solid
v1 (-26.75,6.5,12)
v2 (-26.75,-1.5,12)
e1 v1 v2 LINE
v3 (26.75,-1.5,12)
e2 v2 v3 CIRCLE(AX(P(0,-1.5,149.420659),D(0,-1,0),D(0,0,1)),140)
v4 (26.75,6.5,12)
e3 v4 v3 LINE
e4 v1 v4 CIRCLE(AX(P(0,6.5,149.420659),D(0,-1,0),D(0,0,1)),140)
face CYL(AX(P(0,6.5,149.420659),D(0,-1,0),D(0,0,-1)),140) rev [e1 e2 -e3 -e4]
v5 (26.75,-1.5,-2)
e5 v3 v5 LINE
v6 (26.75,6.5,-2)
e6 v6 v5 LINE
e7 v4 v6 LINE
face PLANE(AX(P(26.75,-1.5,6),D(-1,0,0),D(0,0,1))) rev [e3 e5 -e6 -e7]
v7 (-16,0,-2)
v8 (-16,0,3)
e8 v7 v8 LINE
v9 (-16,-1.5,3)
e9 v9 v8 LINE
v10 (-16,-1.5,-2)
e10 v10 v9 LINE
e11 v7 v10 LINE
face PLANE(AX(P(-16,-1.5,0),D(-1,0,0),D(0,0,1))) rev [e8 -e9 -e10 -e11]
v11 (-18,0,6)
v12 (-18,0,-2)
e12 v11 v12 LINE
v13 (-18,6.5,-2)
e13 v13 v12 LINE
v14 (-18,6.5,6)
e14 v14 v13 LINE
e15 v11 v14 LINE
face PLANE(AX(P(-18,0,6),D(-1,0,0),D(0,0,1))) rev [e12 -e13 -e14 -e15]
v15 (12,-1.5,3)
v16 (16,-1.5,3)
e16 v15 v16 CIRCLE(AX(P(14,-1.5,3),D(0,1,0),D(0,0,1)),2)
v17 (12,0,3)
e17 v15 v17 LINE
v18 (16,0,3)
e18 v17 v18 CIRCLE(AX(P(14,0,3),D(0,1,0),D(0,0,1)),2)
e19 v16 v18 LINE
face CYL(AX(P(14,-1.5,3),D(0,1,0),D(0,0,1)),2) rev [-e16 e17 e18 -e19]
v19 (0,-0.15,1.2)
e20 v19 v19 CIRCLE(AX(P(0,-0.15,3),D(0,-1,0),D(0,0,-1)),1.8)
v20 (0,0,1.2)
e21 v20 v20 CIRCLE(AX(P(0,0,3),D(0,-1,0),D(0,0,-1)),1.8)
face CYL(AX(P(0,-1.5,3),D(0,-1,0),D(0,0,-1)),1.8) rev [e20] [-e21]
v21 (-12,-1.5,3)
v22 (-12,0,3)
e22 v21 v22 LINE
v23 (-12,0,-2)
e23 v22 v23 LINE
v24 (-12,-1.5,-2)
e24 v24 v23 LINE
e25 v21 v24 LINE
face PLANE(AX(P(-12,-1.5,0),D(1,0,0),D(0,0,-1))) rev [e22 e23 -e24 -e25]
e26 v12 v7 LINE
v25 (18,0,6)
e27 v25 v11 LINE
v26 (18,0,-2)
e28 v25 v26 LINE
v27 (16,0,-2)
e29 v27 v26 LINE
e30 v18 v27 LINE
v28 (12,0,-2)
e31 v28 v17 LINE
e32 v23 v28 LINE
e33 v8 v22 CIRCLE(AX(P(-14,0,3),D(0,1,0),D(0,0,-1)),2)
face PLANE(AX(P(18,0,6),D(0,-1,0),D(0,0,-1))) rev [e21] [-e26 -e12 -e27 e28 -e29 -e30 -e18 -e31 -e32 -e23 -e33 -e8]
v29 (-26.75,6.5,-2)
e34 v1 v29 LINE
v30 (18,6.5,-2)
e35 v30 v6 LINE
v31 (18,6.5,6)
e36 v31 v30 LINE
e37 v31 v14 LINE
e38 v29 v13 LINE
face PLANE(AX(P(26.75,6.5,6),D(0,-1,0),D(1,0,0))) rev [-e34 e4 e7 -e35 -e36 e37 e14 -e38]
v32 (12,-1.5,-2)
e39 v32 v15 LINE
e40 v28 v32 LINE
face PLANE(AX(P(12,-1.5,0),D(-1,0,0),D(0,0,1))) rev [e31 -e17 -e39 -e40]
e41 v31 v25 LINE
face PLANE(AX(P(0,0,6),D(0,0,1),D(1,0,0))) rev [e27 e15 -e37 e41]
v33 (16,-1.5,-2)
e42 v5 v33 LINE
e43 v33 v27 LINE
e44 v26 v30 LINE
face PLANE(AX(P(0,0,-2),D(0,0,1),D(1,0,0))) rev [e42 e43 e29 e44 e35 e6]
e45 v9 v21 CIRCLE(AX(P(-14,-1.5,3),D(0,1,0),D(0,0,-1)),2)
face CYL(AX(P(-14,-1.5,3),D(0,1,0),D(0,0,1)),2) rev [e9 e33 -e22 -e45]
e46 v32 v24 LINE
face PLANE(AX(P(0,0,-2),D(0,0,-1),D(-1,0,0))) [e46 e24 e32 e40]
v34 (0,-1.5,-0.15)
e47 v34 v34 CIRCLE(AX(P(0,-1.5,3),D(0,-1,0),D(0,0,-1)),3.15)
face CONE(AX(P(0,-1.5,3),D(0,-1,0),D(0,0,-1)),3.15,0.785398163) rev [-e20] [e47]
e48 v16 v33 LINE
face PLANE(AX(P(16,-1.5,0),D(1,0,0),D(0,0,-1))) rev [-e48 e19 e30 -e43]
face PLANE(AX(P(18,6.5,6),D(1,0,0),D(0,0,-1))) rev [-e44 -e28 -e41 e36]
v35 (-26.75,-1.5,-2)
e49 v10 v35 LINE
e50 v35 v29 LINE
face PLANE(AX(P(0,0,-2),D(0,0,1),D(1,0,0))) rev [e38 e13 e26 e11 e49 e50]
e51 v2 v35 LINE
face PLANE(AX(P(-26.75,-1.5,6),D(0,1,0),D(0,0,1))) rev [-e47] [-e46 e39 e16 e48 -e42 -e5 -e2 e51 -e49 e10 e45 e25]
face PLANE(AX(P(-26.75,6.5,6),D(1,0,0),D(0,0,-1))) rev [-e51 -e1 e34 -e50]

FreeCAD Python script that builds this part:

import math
import FreeCAD as App
import Part
import Sketcher

V = App.Vector
Q = App.Units.Quantity


def add_polygon(sketch, points):
    """Adds a closed chain of lines whose ends are joined by coincident constraints."""
    first, n = sketch.GeometryCount, len(points)
    for a, b in zip(points, points[1:] + points[:1]):
        sketch.addGeometry(Part.LineSegment(App.Vector(*a, 0), App.Vector(*b, 0)), False)
    for i in range(n):
        sketch.addConstraint(Sketcher.Constraint("Coincident", first + i, 2, first + (i + 1) % n, 1))

doc = App.newDocument("Part")
params = doc.addObject("Spreadsheet::Sheet", "Params")
for row, (alias, value) in enumerate([
    ("sketch1_width", "36 mm"),
    ("sketch1_height", "8 mm"),
    ("sketch1_width2", "53.5 mm"),
    ("sketch1_height2", "6.5 mm"),
    ("pad1_length", "6 mm"),
    ("sketch2_height", "8 mm"),
    ("sketch2_width", "53.5 mm"),
    ("pad2_length", "2 mm"),
    ("sketch3_diameter", "3.6 mm"),
    ("hole_diameter", "3.6 mm"),
    ("hole_csink_diameter", "6.3 mm"),
    ("sketch4_radius", "2 mm"),
    ("sketch4_height", "3 mm"),
    ("sketch5_radius", "140 mm"),
    ("sketch5_height", "4 mm"),
    ("sketch5_width", "53.5 mm"),
    ("pad3_length", "8 mm"),
    ("sketch6_width", "2 mm"),
    ("sketch6_width2", "24 mm"),
    ("sketch6_height", "8 mm"),
    ("sketch6_height2", "1.5 mm"),
    ("sketch6_width3", "8.75 mm"),
    ("pad4_length", "2 mm"),
    ("sketch7_diameter", "3.6 mm"),
    ("hole2_diameter", "3.6 mm"),
    ("hole2_csink_diameter", "6.3 mm"),
], start=1):
    params.set(f"A{row}", alias)
    params.set(f"B{row}", "=" + value)
    params.setAlias(f"B{row}", alias)

body = doc.addObject("PartDesign::Body", "Body")

# Sketch on XY plane
sketch1 = body.newObject("Sketcher::SketchObject", "Sketch")
sketch1.AttachmentSupport = (doc.getObject("XY_Plane"), [""])
sketch1.MapMode = "FlatFace"
add_polygon(sketch1, [(-18, 0), (-18, 6), (-27, 6), (-27, -2), (27, -2), (27, 6), (18, 6), (18, 0)])  # lines 0-7
sketch1.addConstraint([
    Sketcher.Constraint("Vertical", 0),
    Sketcher.Constraint("Horizontal", 1),
    Sketcher.Constraint("Vertical", 2),
    Sketcher.Constraint("Horizontal", 3),
    Sketcher.Constraint("Vertical", 4),
    Sketcher.Constraint("Horizontal", 5),
    Sketcher.Constraint("Vertical", 6),
    Sketcher.Constraint("Horizontal", 7),
    Sketcher.Constraint("Symmetric", 6, 2, 7, 2, -1, 1),
    Sketcher.Constraint("Symmetric", 1, 2, 4, 2, -2),
    Sketcher.Constraint("DistanceX", 7, 2, 7, 1, Q("36 mm")),
    Sketcher.Constraint("DistanceY", 2, 2, 2, 1, Q("8 mm")),
    Sketcher.Constraint("DistanceX", 3, 1, 3, 2, Q("53.5 mm")),
    Sketcher.Constraint("DistanceY", 0, 1, 0, 2, Q("6.5 mm")),
])
sketch1.setExpression("Constraints[18]", "Params.sketch1_width")
sketch1.setExpression("Constraints[19]", "Params.sketch1_height")
sketch1.setExpression("Constraints[20]", "Params.sketch1_width2")
sketch1.setExpression("Constraints[21]", "Params.sketch1_height2")
pad1 = body.newObject("PartDesign::Pad", "Pad")
pad1.Profile = sketch1
pad1.setExpression("Length", "Params.pad1_length")

# Sketch on XY plane
sketch2 = body.newObject("Sketcher::SketchObject", "Sketch001")
sketch2.AttachmentSupport = (doc.getObject("XY_Plane"), [""])
sketch2.MapMode = "FlatFace"
sketch2.AttachmentOffset = App.Placement(V(0, 0, 6), App.Rotation())
add_polygon(sketch2, [(-27, 6), (-27, -2), (27, -2), (27, 6)])  # lines 0-3
sketch2.addConstraint([
    Sketcher.Constraint("Vertical", 0),
    Sketcher.Constraint("Horizontal", 1),
    Sketcher.Constraint("Vertical", 2),
    Sketcher.Constraint("Horizontal", 3),
    Sketcher.Constraint("DistanceY", 0, 2, 0, 1, Q("8 mm")),
    Sketcher.Constraint("DistanceX", 1, 1, 1, 2, Q("53.5 mm")),
    Sketcher.Constraint("DistanceY", 0, 2, -1, 1, Q("1.5 mm")),
    Sketcher.Constraint("DistanceX", 0, 2, -1, 1, Q("26.75 mm")),
])
sketch2.setExpression("Constraints[8]", "Params.sketch2_height")
sketch2.setExpression("Constraints[9]", "Params.sketch2_width")
pad2 = body.newObject("PartDesign::Pad", "Pad001")
pad2.Profile = sketch2
pad2.setExpression("Length", "Params.pad2_length")

# Sketch on XZ plane
sketch3 = body.newObject("Sketcher::SketchObject", "Sketch002")
sketch3.AttachmentSupport = (doc.getObject("XZ_Plane"), [""])
sketch3.MapMode = "FlatFace"
sketch3.AttachmentOffset = App.Placement(V(0, 0, 1.5), App.Rotation())
sketch3.addGeometry(Part.Circle(V(0, 3, 0), V(0, 0, 1), 1.8), False)
sketch3.addConstraint([
    Sketcher.Constraint("PointOnObject", 0, 3, -2),
    Sketcher.Constraint("Diameter", 0, Q("3.6 mm")),
    Sketcher.Constraint("DistanceY", -1, 1, 0, 3, Q("3 mm")),
])
sketch3.setExpression("Constraints[1]", "Params.sketch3_diameter")
doc.recompute()
hole = body.newObject("PartDesign::Hole", "Hole")
hole.Profile = sketch3
hole.ThreadType = "None"
hole.setExpression("Diameter", "Params.hole_diameter")
hole.DepthType = "ThroughAll"
hole.HoleCutType = "Countersink"
hole.setExpression("HoleCutDiameter", "Params.hole_csink_diameter")
hole.HoleCutCountersinkAngle = 90

# Sketch on XZ plane
sketch4 = body.newObject("Sketcher::SketchObject", "Sketch003")
sketch4.AttachmentSupport = (doc.getObject("XZ_Plane"), [""])
sketch4.MapMode = "FlatFace"
sketch4.addGeometry([
    Part.LineSegment(V(16, 3, 0), V(16, 0, 0)),  # 0
    Part.ArcOfCircle(Part.Circle(V(14, 0, 0), V(0, 0, 1), 2), math.radians(180), math.radians(360)),  # 1
    Part.LineSegment(V(12, 0, 0), V(12, 3, 0)),  # 2
    Part.ArcOfCircle(Part.Circle(V(14, 3, 0), V(0, 0, 1), 2), math.radians(0), math.radians(180)),  # 3
    Part.LineSegment(V(-16, 0, 0), V(-16, 3, 0)),  # 4
    Part.ArcOfCircle(Part.Circle(V(-14, 3, 0), V(0, 0, 1), 2), math.radians(0), math.radians(180)),  # 5
    Part.LineSegment(V(-12, 3, 0), V(-12, 0, 0)),  # 6
    Part.ArcOfCircle(Part.Circle(V(-14, 0, 0), V(0, 0, 1), 2), math.radians(180), math.radians(360)),  # 7
], False)
sketch4.addConstraint([
    Sketcher.Constraint("Tangent", 0, 2, 1, 2),
    Sketcher.Constraint("Tangent", 1, 1, 2, 1),
    Sketcher.Constraint("Tangent", 2, 2, 3, 2),
    Sketcher.Constraint("Tangent", 3, 1, 0, 1),
    Sketcher.Constraint("Tangent", 4, 2, 5, 2),
    Sketcher.Constraint("Tangent", 5, 1, 6, 1),
    Sketcher.Constraint("Tangent", 6, 2, 7, 2),
    Sketcher.Constraint("Tangent", 7, 1, 4, 1),
    Sketcher.Constraint("Vertical", 0),
    Sketcher.Constraint("Vertical", 2),
    Sketcher.Constraint("Vertical", 4),
    Sketcher.Constraint("Vertical", 6),
    Sketcher.Constraint("Equal", 3, 5),
    Sketcher.Constraint("Symmetric", 1, 3, 7, 3, -1, 1),
    Sketcher.Constraint("PointOnObject", 1, 3, -1),
    Sketcher.Constraint("Horizontal", 3, 3, 5, 3),
    Sketcher.Constraint("Radius", 1, Q("2 mm")),
    Sketcher.Constraint("DistanceY", 0, 2, 0, 1, Q("3 mm")),
    Sketcher.Constraint("DistanceX", -1, 1, 1, 3, Q("14 mm")),
])
sketch4.setExpression("Constraints[16]", "Params.sketch4_radius")
sketch4.setExpression("Constraints[17]", "Params.sketch4_height")
pocket1 = body.newObject("PartDesign::Pocket", "Pocket")
pocket1.Profile = sketch4
pocket1.Type = "ThroughAll"
pocket1.Reversed = True

# Sketch on XZ plane
sketch5 = body.newObject("Sketcher::SketchObject", "Sketch004")
sketch5.AttachmentSupport = (doc.getObject("XZ_Plane"), [""])
sketch5.MapMode = "FlatFace"
sketch5.AttachmentOffset = App.Placement(V(0, 0, 1.5), App.Rotation())
sketch5.addGeometry([
    Part.LineSegment(V(26.8, 12, 0), V(26.8, 8, 0)),
    Part.LineSegment(V(26.8, 8, 0), V(-26.8, 8, 0)),
    Part.LineSegment(V(-26.8, 8, 0), V(-26.8, 12, 0)),
    Part.ArcOfCircle(Part.Circle(V(0, 149.4, 0), V(0, 0, 1), 140), math.radians(-101), math.radians(-79)),
], False)
sketch5.addConstraint([
    Sketcher.Constraint("Coincident", 0, 2, 1, 1),
    Sketcher.Constraint("Coincident", 1, 2, 2, 1),
    Sketcher.Constraint("Coincident", 2, 2, 3, 1),
    Sketcher.Constraint("Coincident", 3, 2, 0, 1),
    Sketcher.Constraint("Vertical", 0),
    Sketcher.Constraint("Horizontal", 1),
    Sketcher.Constraint("Vertical", 2),
    Sketcher.Constraint("Symmetric", 2, 2, 3, 2, -2),
    Sketcher.Constraint("Radius", 3, Q("140 mm")),
    Sketcher.Constraint("DistanceY", 0, 2, 0, 1, Q("4 mm")),
    Sketcher.Constraint("DistanceX", 1, 2, 1, 1, Q("53.5 mm")),
    Sketcher.Constraint("DistanceY", -1, 1, 0, 2, Q("8 mm")),
])
sketch5.setExpression("Constraints[8]", "Params.sketch5_radius")
sketch5.setExpression("Constraints[9]", "Params.sketch5_height")
sketch5.setExpression("Constraints[10]", "Params.sketch5_width")
pad3 = body.newObject("PartDesign::Pad", "Pad002")
pad3.Profile = sketch5
pad3.setExpression("Length", "Params.pad3_length")
pad3.Reversed = True

# Sketch on XY plane
sketch6 = body.newObject("Sketcher::SketchObject", "Sketch005")
sketch6.AttachmentSupport = (doc.getObject("XY_Plane"), [""])
sketch6.MapMode = "FlatFace"
add_polygon(sketch6, [(18, 6.5), (26.8, 6.5), (26.8, -1.5), (16, -1.5), (16, 0), (18, 0)])  # lines 0-5
add_polygon(sketch6, [(12, 0), (12, -1.5), (-12, -1.5), (-12, 0)])  # lines 6-9
add_polygon(sketch6, [(-26.8, 6.5), (-18, 6.5), (-18, 0), (-16, 0), (-16, -1.5), (-26.8, -1.5)])  # lines 10-15
sketch6.addConstraint([
    Sketcher.Constraint("Horizontal", 0),
    Sketcher.Constraint("Vertical", 1),
    Sketcher.Constraint("Horizontal", 2),
    Sketcher.Constraint("Vertical", 3),
    Sketcher.Constraint("Horizontal", 4),
    Sketcher.Constraint("Vertical", 5),
    Sketcher.Constraint("Vertical", 6),
    Sketcher.Constraint("Horizontal", 7),
    Sketcher.Constraint("Vertical", 8),
    Sketcher.Constraint("Horizontal", 9),
    Sketcher.Constraint("Horizontal", 10),
    Sketcher.Constraint("Vertical", 11),
    Sketcher.Constraint("Horizontal", 12),
    Sketcher.Constraint("Vertical", 13),
    Sketcher.Constraint("Horizontal", 14),
    Sketcher.Constraint("Vertical", 15),
    Sketcher.Constraint("Symmetric", 8, 2, 9, 2, -1, 1),
    Sketcher.Constraint("Symmetric", 4, 2, 11, 2, -1, 1),
    Sketcher.Constraint("Symmetric", 3, 2, 12, 2, -2),
    Sketcher.Constraint("Symmetric", 1, 2, 14, 2, -2),
    Sketcher.Constraint("Horizontal", 2, 2, 6, 2),
    Sketcher.Constraint("Horizontal", 5, 2, 10, 2),
    Sketcher.Constraint("DistanceX", 4, 1, 4, 2, Q("2 mm")),
    Sketcher.Constraint("DistanceX", 7, 2, 7, 1, Q("24 mm")),
    Sketcher.Constraint("DistanceY", 1, 2, 1, 1, Q("8 mm")),
    Sketcher.Constraint("DistanceY", 3, 1, 3, 2, Q("1.5 mm")),
    Sketcher.Constraint("DistanceX", -1, 1, 2, 2, Q("16 mm")),
    Sketcher.Constraint("DistanceX", 0, 1, 0, 2, Q("8.75 mm")),
])
sketch6.setExpression("Constraints[38]", "Params.sketch6_width")
sketch6.setExpression("Constraints[39]", "Params.sketch6_width2")
sketch6.setExpression("Constraints[40]", "Params.sketch6_height")
sketch6.setExpression("Constraints[41]", "Params.sketch6_height2")
sketch6.setExpression("Constraints[43]", "Params.sketch6_width3")
pad4 = body.newObject("PartDesign::Pad", "Pad003")
pad4.Profile = sketch6
pad4.setExpression("Length", "Params.pad4_length")
pad4.Reversed = True

# Sketch on XZ plane
sketch7 = body.newObject("Sketcher::SketchObject", "Sketch006")
sketch7.AttachmentSupport = (doc.getObject("XZ_Plane"), [""])
sketch7.MapMode = "FlatFace"
sketch7.AttachmentOffset = App.Placement(V(0, 0, 1.5), App.Rotation())
sketch7.addGeometry(Part.Circle(V(0, 3, 0), V(0, 0, 1), 1.8), False)
sketch7.addConstraint([
    Sketcher.Constraint("PointOnObject", 0, 3, -2),
    Sketcher.Constraint("Diameter", 0, Q("3.6 mm")),
    Sketcher.Constraint("DistanceY", -1, 1, 0, 3, Q("3 mm")),
])
sketch7.setExpression("Constraints[1]", "Params.sketch7_diameter")
doc.recompute()
hole2 = body.newObject("PartDesign::Hole", "Hole001")
hole2.Profile = sketch7
hole2.ThreadType = "None"
hole2.setExpression("Diameter", "Params.hole2_diameter")
hole2.DepthType = "ThroughAll"
hole2.HoleCutType = "Countersink"
hole2.setExpression("HoleCutDiameter", "Params.hole2_csink_diameter")
hole2.HoleCutCountersinkAngle = 90

doc.recompute()
